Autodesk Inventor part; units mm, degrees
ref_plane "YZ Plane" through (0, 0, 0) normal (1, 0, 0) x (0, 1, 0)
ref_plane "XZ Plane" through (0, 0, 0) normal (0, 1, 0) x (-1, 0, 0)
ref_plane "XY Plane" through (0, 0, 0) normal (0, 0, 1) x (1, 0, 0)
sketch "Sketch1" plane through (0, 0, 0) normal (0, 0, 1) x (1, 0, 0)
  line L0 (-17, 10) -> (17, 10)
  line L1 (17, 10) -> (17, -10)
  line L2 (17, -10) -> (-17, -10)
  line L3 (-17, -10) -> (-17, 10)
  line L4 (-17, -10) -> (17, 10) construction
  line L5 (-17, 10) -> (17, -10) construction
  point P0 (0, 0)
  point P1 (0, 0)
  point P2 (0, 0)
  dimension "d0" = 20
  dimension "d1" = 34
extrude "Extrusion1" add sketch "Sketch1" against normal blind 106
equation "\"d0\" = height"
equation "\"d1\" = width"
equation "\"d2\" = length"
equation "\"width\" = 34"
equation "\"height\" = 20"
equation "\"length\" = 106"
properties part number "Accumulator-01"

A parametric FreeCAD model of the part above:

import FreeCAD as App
import Part
import Sketcher

V = App.Vector

doc = App.newDocument("Part")
params = doc.addObject("Spreadsheet::Sheet", "Params")
for row, (alias, value) in enumerate([
    ("sketch1_width", "34 mm"),
    ("sketch1_height", "20 mm"),
    ("pad1_length", "106 mm"),
], start=1):
    params.set(f"A{row}", alias)
    params.set(f"B{row}", "=" + value)
    params.setAlias(f"B{row}", alias)

body = doc.addObject("PartDesign::Body", "Body")

# Sketch on XY plane
sketch1 = body.newObject("Sketcher::SketchObject", "Sketch")
sketch1.AttachmentSupport = (doc.getObject("XY_Plane"), [""])
sketch1.MapMode = "FlatFace"
sketch1.addGeometry([
    Part.LineSegment(V(17, 10, 0), V(-17, 10, 0)),
    Part.LineSegment(V(-17, 10, 0), V(-17, -10, 0)),
    Part.LineSegment(V(-17, -10, 0), V(17, -10, 0)),
    Part.LineSegment(V(17, -10, 0), V(17, 10, 0)),
], False)
sketch1.addConstraint([
    Sketcher.Constraint("Coincident", 0, 2, 1, 1),
    Sketcher.Constraint("Coincident", 1, 2, 2, 1),
    Sketcher.Constraint("Coincident", 2, 2, 3, 1),
    Sketcher.Constraint("Coincident", 3, 2, 0, 1),
    Sketcher.Constraint("Horizontal", 0),
    Sketcher.Constraint("Vertical", 1),
    Sketcher.Constraint("Horizontal", 2),
    Sketcher.Constraint("Vertical", 3),
    Sketcher.Constraint("Symmetric", 0, 2, 2, 2, -1, 1),
    Sketcher.Constraint("DistanceX", 0, 2, 0, 1, 34.0),
    Sketcher.Constraint("DistanceY", 1, 2, 1, 1, 20.0),
])
sketch1.setExpression("Constraints[9]", "Params.sketch1_width")
sketch1.setExpression("Constraints[10]", "Params.sketch1_height")
pad1 = body.newObject("PartDesign::Pad", "Pad")
pad1.Profile = sketch1
pad1.setExpression("Length", "Params.pad1_length")
pad1.Reversed = True

doc.recompute()
